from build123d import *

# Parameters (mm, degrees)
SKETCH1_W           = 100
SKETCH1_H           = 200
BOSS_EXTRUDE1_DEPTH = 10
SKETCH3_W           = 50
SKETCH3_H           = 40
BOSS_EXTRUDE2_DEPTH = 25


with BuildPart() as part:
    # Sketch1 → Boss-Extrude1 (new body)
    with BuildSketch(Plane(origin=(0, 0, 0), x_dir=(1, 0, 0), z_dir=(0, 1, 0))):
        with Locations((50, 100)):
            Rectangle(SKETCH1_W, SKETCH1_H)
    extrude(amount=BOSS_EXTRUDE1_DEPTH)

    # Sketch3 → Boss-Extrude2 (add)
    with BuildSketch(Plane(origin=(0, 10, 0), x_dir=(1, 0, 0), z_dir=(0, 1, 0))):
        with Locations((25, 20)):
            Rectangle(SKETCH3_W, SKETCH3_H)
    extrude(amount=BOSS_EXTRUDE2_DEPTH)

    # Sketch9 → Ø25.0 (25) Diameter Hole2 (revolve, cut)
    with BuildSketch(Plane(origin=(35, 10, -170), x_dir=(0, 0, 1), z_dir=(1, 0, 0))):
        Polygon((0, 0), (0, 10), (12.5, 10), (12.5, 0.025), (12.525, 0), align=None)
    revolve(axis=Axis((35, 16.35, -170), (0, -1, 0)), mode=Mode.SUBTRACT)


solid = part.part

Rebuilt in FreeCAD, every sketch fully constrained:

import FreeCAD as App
import Part
import Sketcher
from FreeCAD import Vector
Q = App.Units.Quantity

doc = App.newDocument("Part")
body = doc.addObject("PartDesign::Body", "Body")

# Sketch on XZ plane
sketch1 = body.newObject("Sketcher::SketchObject", "Sketch")
sketch1.AttachmentSupport = (doc.getObject("XZ_Plane"), [""])
sketch1.MapMode = "FlatFace"
sketch1.addGeometry(Part.LineSegment(Vector(0, -200, 0), Vector(0, 0, 0)), False)
sketch1.addGeometry(Part.LineSegment(Vector(0, 0, 0), Vector(100, 0, 0)), False)
sketch1.addGeometry(Part.LineSegment(Vector(100, 0, 0), Vector(100, -200, 0)), False)
sketch1.addGeometry(Part.LineSegment(Vector(100, -200, 0), Vector(0, -200, 0)), False)
sketch1.addConstraint(Sketcher.Constraint("Coincident", 0, 2, 1, 1))
sketch1.addConstraint(Sketcher.Constraint("Coincident", 1, 2, 2, 1))
sketch1.addConstraint(Sketcher.Constraint("Coincident", 2, 2, 3, 1))
sketch1.addConstraint(Sketcher.Constraint("Coincident", 3, 2, 0, 1))
sketch1.addConstraint(Sketcher.Constraint("Vertical", 0))
sketch1.addConstraint(Sketcher.Constraint("Horizontal", 1))
sketch1.addConstraint(Sketcher.Constraint("Vertical", 2))
sketch1.addConstraint(Sketcher.Constraint("Horizontal", 3))
sketch1.addConstraint(Sketcher.Constraint("Coincident", 0, 2, -1, 1))
sketch1.addConstraint(Sketcher.Constraint("DistanceX", 1, 1, 1, 2, Q("100 mm")))
sketch1.addConstraint(Sketcher.Constraint("DistanceY", 0, 1, 0, 2, Q("200 mm")))
pad1 = body.newObject("PartDesign::Pad", "Pad")
pad1.Profile = sketch1
pad1.Length = 10
pad1.Reversed = True

# Sketch on XZ plane
sketch2 = body.newObject("Sketcher::SketchObject", "Sketch001")
sketch2.AttachmentSupport = (doc.getObject("XZ_Plane"), [""])
sketch2.MapMode = "FlatFace"
sketch2.AttachmentOffset = App.Placement(Vector(0, 0, -10), App.Rotation())
sketch2.addGeometry(Part.LineSegment(Vector(0, -40, 0), Vector(0, 0, 0)), False)
sketch2.addGeometry(Part.LineSegment(Vector(0, 0, 0), Vector(50, 0, 0)), False)
sketch2.addGeometry(Part.LineSegment(Vector(50, 0, 0), Vector(50, -40, 0)), False)
sketch2.addGeometry(Part.LineSegment(Vector(50, -40, 0), Vector(0, -40, 0)), False)
sketch2.addConstraint(Sketcher.Constraint("Coincident", 0, 2, 1, 1))
sketch2.addConstraint(Sketcher.Constraint("Coincident", 1, 2, 2, 1))
sketch2.addConstraint(Sketcher.Constraint("Coincident", 2, 2, 3, 1))
sketch2.addConstraint(Sketcher.Constraint("Coincident", 3, 2, 0, 1))
sketch2.addConstraint(Sketcher.Constraint("Vertical", 0))
sketch2.addConstraint(Sketcher.Constraint("Horizontal", 1))
sketch2.addConstraint(Sketcher.Constraint("Vertical", 2))
sketch2.addConstraint(Sketcher.Constraint("Horizontal", 3))
sketch2.addConstraint(Sketcher.Constraint("Coincident", 0, 2, -1, 1))
sketch2.addConstraint(Sketcher.Constraint("DistanceX", 1, 1, 1, 2, Q("50 mm")))
sketch2.addConstraint(Sketcher.Constraint("DistanceY", 0, 1, 0, 2, Q("40 mm")))
pad2 = body.newObject("PartDesign::Pad", "Pad001")
pad2.Profile = sketch2
pad2.Length = 25
pad2.Reversed = True

# Sketch on YZ plane
sketch3 = body.newObject("Sketcher::SketchObject", "Sketch002")
sketch3.AttachmentSupport = (doc.getObject("YZ_Plane"), [""])
sketch3.MapMode = "FlatFace"
sketch3.AttachmentOffset = App.Placement(Vector(0, 0, 35), App.Rotation())
sketch3.addGeometry(Part.LineSegment(Vector(0, -170, 0), Vector(10, -170, 0)), False)
sketch3.addGeometry(Part.LineSegment(Vector(10, -170, 0), Vector(10, -157.475, 0)), False)
sketch3.addGeometry(Part.LineSegment(Vector(10, -157.475, 0), Vector(9.975, -157.5, 0)), False)
sketch3.addGeometry(Part.LineSegment(Vector(9.975, -157.5, 0), Vector(0, -157.5, 0)), False)
sketch3.addGeometry(Part.LineSegment(Vector(0, -157.5, 0), Vector(0, -170, 0)), False)
sketch3.addGeometry(Part.LineSegment(Vector(10, -170, 0), Vector(0, -170, 0)), True)  # axis
sketch3.addConstraint(Sketcher.Constraint("Coincident", 0, 2, 1, 1))
sketch3.addConstraint(Sketcher.Constraint("Coincident", 1, 2, 2, 1))
sketch3.addConstraint(Sketcher.Constraint("Coincident", 2, 2, 3, 1))
sketch3.addConstraint(Sketcher.Constraint("Coincident", 3, 2, 4, 1))
sketch3.addConstraint(Sketcher.Constraint("Coincident", 4, 2, 0, 1))
sketch3.addConstraint(Sketcher.Constraint("Horizontal", 0))
sketch3.addConstraint(Sketcher.Constraint("Vertical", 1))
sketch3.addConstraint(Sketcher.Constraint("Horizontal", 3))
sketch3.addConstraint(Sketcher.Constraint("Vertical", 4))
sketch3.addConstraint(Sketcher.Constraint("Horizontal", 5))
sketch3.addConstraint(Sketcher.Constraint("Coincident", 5, 1, 0, 2))
sketch3.addConstraint(Sketcher.Constraint("PointOnObject", 3, 2, -2))
sketch3.addConstraint(Sketcher.Constraint("PointOnObject", 5, 2, -2))
sketch3.addConstraint(Sketcher.Constraint("DistanceX", 0, 1, 0, 2, Q("10 mm")))
sketch3.addConstraint(Sketcher.Constraint("Angle", 2, Q("-135 deg")))
sketch3.addConstraint(Sketcher.Constraint("DistanceY", 4, 2, 4, 1, Q("12.5 mm")))
sketch3.addConstraint(Sketcher.Constraint("DistanceY", 0, 2, -1, 1, Q("170 mm")))
sketch3.addConstraint(Sketcher.Constraint("DistanceX", 3, 2, 3, 1, Q("9.975 mm")))
groove = body.newObject("PartDesign::Groove", "Groove")
groove.Profile = sketch3
groove.ReferenceAxis = (sketch3, ["Axis0"])
groove.Angle = 360

doc.recompute()
